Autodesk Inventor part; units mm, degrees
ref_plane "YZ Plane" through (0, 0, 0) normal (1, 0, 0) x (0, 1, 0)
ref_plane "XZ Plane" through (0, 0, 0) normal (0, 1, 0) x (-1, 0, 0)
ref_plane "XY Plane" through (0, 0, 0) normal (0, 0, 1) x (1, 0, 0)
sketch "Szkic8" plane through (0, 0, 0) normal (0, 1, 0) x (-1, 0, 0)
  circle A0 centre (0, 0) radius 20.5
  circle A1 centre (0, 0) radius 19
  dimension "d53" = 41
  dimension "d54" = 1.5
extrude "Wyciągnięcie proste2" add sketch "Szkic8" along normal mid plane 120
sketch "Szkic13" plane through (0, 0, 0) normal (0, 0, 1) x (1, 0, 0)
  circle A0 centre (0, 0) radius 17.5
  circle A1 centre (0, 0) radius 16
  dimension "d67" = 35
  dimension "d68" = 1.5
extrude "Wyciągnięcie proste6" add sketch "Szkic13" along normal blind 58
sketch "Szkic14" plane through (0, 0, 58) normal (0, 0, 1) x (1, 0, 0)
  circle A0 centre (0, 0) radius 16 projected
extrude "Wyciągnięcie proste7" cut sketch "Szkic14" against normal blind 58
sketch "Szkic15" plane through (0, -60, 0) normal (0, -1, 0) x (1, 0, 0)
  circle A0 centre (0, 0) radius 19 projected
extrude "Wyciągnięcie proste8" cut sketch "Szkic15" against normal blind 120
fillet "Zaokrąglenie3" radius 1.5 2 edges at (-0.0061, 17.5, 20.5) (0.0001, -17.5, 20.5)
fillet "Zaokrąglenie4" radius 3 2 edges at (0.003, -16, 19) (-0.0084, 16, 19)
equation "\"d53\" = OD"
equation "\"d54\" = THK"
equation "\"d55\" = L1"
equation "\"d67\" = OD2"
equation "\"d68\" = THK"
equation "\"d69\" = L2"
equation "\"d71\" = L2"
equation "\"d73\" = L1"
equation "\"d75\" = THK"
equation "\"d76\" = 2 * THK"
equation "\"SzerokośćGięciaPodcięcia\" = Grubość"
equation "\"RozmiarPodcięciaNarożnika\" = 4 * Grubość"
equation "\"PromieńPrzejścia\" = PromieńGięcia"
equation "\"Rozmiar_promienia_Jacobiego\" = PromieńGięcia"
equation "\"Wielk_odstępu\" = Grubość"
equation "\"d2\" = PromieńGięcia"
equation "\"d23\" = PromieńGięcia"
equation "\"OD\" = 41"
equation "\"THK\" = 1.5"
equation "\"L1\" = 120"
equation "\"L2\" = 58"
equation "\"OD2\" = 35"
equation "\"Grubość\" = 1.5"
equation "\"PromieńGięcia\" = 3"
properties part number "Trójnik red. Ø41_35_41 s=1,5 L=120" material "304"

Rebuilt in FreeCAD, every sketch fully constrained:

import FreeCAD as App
import Part
import Sketcher

V = App.Vector
Q = App.Units.Quantity


def edges_at(feature, points):
    """Names of the edges that pass closest to the given points."""
    edges = feature.Shape.Edges
    near = lambda p: min(range(len(edges)), key=lambda i: edges[i].distToShape(Part.Vertex(*p))[0])
    return sorted({f"Edge{near(p) + 1}" for p in points})

doc = App.newDocument("Part")
params = doc.addObject("Spreadsheet::Sheet", "Params")
for row, (alias, value) in enumerate([
    ("sketch1_diameter", "41 mm"),
    ("sketch1_diameter2", "38 mm"),
    ("pad1_length", "120 mm"),
    ("sketch2_diameter", "35 mm"),
    ("sketch2_diameter2", "32 mm"),
    ("pad2_length", "58 mm"),
    ("sketch3_diameter", "32 mm"),
    ("pocket1_length", "58 mm"),
    ("sketch4_diameter", "38 mm"),
    ("pocket2_length", "120 mm"),
    ("fillet_radius", "1.5 mm"),
    ("fillet2_radius", "3 mm"),
], start=1):
    params.set(f"A{row}", alias)
    params.set(f"B{row}", "=" + value)
    params.setAlias(f"B{row}", alias)

body = doc.addObject("PartDesign::Body", "Body")

sketch1 = body.newObject("Sketcher::SketchObject", "Sketch")
sketch1.AttachmentSupport = (doc.getObject("XZ_Plane"), [""])
sketch1.MapMode = "FlatFace"
sketch1.addGeometry(Part.Circle(V(0, 0, 0), V(0, 0, 1), 20), False)
sketch1.addGeometry(Part.Circle(V(0, 0, 0), V(0, 0, 1), 19), False)
sketch1.addConstraint(Sketcher.Constraint("Coincident", 0, 3, -1, 1))
sketch1.addConstraint(Sketcher.Constraint("Coincident", 1, 3, -1, 1))
sketch1.addConstraint(Sketcher.Constraint("Diameter", 0, Q("41 mm")))
sketch1.addConstraint(Sketcher.Constraint("Diameter", 1, Q("38 mm")))
sketch1.setExpression("Constraints[2]", "Params.sketch1_diameter")
sketch1.setExpression("Constraints[3]", "Params.sketch1_diameter2")
pad1 = body.newObject("PartDesign::Pad", "Pad")
pad1.Profile = sketch1
pad1.setExpression("Length", "Params.pad1_length")
pad1.Midplane = True

sketch2 = body.newObject("Sketcher::SketchObject", "Sketch001")
sketch2.AttachmentSupport = (doc.getObject("XY_Plane"), [""])
sketch2.MapMode = "FlatFace"
sketch2.addGeometry(Part.Circle(V(0, 0, 0), V(0, 0, 1), 18), False)
sketch2.addGeometry(Part.Circle(V(0, 0, 0), V(0, 0, 1), 16), False)
sketch2.addConstraint(Sketcher.Constraint("Coincident", 0, 3, -1, 1))
sketch2.addConstraint(Sketcher.Constraint("Coincident", 1, 3, -1, 1))
sketch2.addConstraint(Sketcher.Constraint("Diameter", 0, Q("35 mm")))
sketch2.addConstraint(Sketcher.Constraint("Diameter", 1, Q("32 mm")))
sketch2.setExpression("Constraints[2]", "Params.sketch2_diameter")
sketch2.setExpression("Constraints[3]", "Params.sketch2_diameter2")
pad2 = body.newObject("PartDesign::Pad", "Pad001")
pad2.Profile = sketch2
pad2.setExpression("Length", "Params.pad2_length")

sketch3 = body.newObject("Sketcher::SketchObject", "Sketch002")
sketch3.AttachmentSupport = (doc.getObject("XY_Plane"), [""])
sketch3.MapMode = "FlatFace"
sketch3.AttachmentOffset = App.Placement(V(0, 0, 58), App.Rotation())
sketch3.addGeometry(Part.Circle(V(0, 0, 0), V(0, 0, 1), 16), False)
sketch3.addConstraint(Sketcher.Constraint("Coincident", 0, 3, -1, 1))
sketch3.addConstraint(Sketcher.Constraint("Diameter", 0, Q("32 mm")))
sketch3.setExpression("Constraints[1]", "Params.sketch3_diameter")
pocket1 = body.newObject("PartDesign::Pocket", "Pocket")
pocket1.Profile = sketch3
pocket1.setExpression("Length", "Params.pocket1_length")

sketch4 = body.newObject("Sketcher::SketchObject", "Sketch003")
sketch4.AttachmentSupport = (doc.getObject("XZ_Plane"), [""])
sketch4.MapMode = "FlatFace"
sketch4.AttachmentOffset = App.Placement(V(0, 0, 60), App.Rotation())
sketch4.addGeometry(Part.Circle(V(0, 0, 0), V(0, 0, 1), 19), False)
sketch4.addConstraint(Sketcher.Constraint("Coincident", 0, 3, -1, 1))
sketch4.addConstraint(Sketcher.Constraint("Diameter", 0, Q("38 mm")))
sketch4.setExpression("Constraints[1]", "Params.sketch4_diameter")
pocket2 = body.newObject("PartDesign::Pocket", "Pocket001")
pocket2.Profile = sketch4
pocket2.setExpression("Length", "Params.pocket2_length")
doc.recompute()

fillet = body.newObject("PartDesign::Fillet", "Fillet")
fillet.Base = (pocket2, edges_at(pocket2, [(-0.006, 17.5, 20.5), (0, -17.5, 20.5)]))
fillet.setExpression("Radius", "Params.fillet_radius")
doc.recompute()

fillet2 = body.newObject("PartDesign::Fillet", "Fillet001")
fillet2.Base = (fillet, edges_at(fillet, [(0.003, -16, 19), (-0.008, 16, 19)]))
fillet2.setExpression("Radius", "Params.fillet2_radius")

doc.recompute()
